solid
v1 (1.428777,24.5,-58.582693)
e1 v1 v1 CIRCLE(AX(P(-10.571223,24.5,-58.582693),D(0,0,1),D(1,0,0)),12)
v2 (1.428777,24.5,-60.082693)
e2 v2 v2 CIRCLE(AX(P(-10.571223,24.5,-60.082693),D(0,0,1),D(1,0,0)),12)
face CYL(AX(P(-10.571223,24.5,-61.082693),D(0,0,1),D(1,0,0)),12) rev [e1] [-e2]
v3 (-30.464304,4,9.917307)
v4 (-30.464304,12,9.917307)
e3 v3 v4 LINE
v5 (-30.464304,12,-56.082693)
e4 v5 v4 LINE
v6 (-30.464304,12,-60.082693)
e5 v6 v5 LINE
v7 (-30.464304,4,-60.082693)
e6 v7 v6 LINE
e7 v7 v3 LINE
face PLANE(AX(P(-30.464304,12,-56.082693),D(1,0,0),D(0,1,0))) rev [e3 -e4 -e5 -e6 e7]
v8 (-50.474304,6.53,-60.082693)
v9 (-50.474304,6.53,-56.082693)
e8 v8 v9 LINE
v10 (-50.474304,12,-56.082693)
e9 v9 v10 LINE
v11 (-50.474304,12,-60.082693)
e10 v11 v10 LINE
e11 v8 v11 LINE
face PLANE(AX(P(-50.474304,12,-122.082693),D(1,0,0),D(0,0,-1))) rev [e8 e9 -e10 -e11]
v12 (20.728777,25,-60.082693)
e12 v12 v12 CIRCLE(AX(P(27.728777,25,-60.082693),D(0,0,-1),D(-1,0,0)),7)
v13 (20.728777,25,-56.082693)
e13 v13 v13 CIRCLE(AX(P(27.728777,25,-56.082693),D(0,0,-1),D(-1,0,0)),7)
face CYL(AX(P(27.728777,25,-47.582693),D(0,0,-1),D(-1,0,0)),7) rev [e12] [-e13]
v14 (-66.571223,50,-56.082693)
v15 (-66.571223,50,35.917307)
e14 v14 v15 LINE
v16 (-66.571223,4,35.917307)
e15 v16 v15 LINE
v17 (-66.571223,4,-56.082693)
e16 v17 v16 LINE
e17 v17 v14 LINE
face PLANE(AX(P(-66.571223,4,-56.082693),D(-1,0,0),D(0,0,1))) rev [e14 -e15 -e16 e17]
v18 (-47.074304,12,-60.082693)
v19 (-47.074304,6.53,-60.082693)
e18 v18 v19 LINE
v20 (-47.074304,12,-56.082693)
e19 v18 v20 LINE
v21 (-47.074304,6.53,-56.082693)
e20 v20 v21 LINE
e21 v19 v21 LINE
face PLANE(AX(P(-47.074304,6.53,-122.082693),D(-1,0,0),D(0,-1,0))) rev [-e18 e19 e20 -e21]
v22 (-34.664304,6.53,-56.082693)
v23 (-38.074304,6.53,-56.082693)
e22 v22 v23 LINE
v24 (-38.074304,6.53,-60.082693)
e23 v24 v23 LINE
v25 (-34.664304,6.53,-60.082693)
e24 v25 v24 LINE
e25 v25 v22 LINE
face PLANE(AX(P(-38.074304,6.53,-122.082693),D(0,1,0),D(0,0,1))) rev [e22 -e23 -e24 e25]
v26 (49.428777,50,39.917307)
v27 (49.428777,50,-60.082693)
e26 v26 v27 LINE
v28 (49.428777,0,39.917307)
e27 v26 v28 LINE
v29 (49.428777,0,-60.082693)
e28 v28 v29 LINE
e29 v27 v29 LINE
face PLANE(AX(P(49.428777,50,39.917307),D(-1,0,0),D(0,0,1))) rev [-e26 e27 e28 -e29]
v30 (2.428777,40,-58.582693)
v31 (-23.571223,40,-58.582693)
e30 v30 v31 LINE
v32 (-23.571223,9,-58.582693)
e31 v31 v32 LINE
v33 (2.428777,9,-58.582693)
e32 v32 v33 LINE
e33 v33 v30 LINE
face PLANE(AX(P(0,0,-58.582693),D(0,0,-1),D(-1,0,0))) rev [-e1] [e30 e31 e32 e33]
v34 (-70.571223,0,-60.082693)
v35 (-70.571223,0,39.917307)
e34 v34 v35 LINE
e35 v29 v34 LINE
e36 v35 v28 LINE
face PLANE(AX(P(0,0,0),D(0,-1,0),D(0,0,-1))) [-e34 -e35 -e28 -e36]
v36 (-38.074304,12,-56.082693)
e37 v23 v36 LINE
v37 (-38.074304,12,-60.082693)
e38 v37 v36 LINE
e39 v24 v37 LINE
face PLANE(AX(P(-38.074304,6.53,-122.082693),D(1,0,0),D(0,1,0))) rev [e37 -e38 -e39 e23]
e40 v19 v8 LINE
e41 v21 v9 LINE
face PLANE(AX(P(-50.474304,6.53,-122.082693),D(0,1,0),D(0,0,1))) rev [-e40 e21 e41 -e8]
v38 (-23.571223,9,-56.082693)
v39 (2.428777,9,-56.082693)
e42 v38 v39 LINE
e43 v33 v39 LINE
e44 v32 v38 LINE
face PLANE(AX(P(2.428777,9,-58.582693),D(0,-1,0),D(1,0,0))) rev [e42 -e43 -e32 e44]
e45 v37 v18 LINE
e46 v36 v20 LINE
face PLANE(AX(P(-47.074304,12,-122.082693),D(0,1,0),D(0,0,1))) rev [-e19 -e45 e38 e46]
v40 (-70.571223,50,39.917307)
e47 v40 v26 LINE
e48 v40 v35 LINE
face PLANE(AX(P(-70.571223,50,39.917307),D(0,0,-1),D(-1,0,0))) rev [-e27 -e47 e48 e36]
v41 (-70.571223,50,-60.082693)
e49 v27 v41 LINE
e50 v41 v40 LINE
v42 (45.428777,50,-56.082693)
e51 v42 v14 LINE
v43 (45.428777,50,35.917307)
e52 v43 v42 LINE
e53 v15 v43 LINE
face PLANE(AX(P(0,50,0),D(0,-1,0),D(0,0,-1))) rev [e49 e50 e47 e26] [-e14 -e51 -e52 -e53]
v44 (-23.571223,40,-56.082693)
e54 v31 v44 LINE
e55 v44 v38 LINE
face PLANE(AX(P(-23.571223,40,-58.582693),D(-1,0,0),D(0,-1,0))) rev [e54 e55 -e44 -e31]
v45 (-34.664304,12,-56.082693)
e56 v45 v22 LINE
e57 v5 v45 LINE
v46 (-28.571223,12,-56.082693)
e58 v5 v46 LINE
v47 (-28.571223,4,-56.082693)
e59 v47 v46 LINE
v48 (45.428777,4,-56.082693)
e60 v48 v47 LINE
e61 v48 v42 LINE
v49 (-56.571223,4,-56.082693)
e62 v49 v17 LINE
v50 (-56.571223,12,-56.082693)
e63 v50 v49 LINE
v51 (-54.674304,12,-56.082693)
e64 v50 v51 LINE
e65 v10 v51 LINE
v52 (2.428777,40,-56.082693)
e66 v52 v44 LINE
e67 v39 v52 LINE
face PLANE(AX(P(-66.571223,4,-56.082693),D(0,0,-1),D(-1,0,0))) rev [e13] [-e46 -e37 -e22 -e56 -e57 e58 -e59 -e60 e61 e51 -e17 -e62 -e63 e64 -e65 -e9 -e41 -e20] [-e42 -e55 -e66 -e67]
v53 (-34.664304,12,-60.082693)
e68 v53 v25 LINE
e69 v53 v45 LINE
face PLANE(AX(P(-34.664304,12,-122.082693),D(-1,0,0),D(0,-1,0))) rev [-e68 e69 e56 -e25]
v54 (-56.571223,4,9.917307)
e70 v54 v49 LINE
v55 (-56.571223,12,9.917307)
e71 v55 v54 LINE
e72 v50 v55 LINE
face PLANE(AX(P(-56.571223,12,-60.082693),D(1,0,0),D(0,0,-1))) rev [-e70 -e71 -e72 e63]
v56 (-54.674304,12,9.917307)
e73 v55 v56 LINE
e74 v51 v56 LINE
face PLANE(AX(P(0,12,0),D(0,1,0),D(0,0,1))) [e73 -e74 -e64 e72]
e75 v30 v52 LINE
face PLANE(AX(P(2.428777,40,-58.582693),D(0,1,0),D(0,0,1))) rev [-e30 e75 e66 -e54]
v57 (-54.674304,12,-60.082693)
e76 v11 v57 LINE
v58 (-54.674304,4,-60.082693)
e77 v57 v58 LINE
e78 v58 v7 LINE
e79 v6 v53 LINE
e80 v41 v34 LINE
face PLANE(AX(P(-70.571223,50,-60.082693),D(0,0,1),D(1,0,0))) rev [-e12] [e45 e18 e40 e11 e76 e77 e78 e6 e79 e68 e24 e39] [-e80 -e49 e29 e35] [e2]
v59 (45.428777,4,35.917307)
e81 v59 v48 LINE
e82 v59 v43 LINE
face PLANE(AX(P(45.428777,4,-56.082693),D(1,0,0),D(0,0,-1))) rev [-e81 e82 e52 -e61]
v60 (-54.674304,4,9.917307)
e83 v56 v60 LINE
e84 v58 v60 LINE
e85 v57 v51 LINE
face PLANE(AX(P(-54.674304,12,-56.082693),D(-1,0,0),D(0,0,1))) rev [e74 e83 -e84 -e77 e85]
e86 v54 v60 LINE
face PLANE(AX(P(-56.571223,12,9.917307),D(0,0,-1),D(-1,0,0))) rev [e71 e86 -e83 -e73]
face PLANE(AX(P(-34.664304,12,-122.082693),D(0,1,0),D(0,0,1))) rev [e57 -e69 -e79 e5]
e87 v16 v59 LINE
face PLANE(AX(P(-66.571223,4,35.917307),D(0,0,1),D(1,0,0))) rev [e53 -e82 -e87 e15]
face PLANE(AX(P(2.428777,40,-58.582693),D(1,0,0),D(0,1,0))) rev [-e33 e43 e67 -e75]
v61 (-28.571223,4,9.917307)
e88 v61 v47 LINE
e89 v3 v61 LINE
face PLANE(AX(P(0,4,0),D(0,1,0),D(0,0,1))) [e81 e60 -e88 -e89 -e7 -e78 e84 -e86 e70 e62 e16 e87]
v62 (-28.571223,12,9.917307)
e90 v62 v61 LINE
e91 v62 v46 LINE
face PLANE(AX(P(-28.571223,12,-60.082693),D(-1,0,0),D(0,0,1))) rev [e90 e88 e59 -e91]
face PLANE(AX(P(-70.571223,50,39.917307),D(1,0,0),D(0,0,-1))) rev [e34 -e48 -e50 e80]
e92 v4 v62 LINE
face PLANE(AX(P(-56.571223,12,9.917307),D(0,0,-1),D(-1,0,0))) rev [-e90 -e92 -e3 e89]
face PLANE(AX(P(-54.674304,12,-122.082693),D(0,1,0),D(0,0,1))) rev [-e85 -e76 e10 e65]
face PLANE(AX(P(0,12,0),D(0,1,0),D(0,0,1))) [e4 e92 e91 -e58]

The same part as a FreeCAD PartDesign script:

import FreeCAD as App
import Part
import Sketcher

V = App.Vector

doc = App.newDocument("Part")
params = doc.addObject("Spreadsheet::Sheet", "Params")
for row, (alias, value) in enumerate([
    ("sketch1_width", "120 mm"),
    ("sketch1_height", "100 mm"),
    ("pad1_length", "50 mm"),
    ("sketch2_width", "112 mm"),
    ("sketch2_height", "92 mm"),
    ("pocket1_length", "46 mm"),
    ("sketch3_width", "28 mm"),
    ("sketch3_height", "70 mm"),
    ("pad2_length", "8 mm"),
    ("sketch4_height", "8 mm"),
    ("sketch4_width", "24.21 mm"),
    ("pocket2_length", "66 mm"),
    ("sketch5_width", "9 mm"),
    ("sketch5_height", "8 mm"),
    ("sketch5_width2", "4.2 mm"),
    ("sketch5_width3", "3.4 mm"),
    ("sketch5_width4", "24.21 mm"),
    ("pocket3_length", "66 mm"),
    ("sketch6_width", "26 mm"),
    ("sketch6_height", "31 mm"),
    ("pocket4_length", "2.5 mm"),
    ("sketch7_diameter", "24 mm"),
    ("pocket5_length", "2.5 mm"),
    ("sketch8_diameter", "14 mm"),
    ("pocket6_length", "12.5 mm"),
], start=1):
    params.set(f"A{row}", alias)
    params.set(f"B{row}", "=" + value)
    params.setAlias(f"B{row}", alias)

body = doc.addObject("PartDesign::Body", "Body")

# Sketch on XZ plane
sketch1 = body.newObject("Sketcher::SketchObject", "Sketch")
sketch1.AttachmentSupport = (doc.getObject("XZ_Plane"), [""])
sketch1.MapMode = "FlatFace"
sketch1.addGeometry([
    Part.LineSegment(V(-70.571223, -60.082693, 0), V(-70.571223, 39.917307, 0)),
    Part.LineSegment(V(-70.571223, 39.917307, 0), V(49.428777, 39.917307, 0)),
    Part.LineSegment(V(49.428777, 39.917307, 0), V(49.428777, -60.082693, 0)),
    Part.LineSegment(V(49.428777, -60.082693, 0), V(-70.571223, -60.082693, 0)),
], False)
sketch1.addConstraint([
    Sketcher.Constraint("Coincident", 0, 2, 1, 1),
    Sketcher.Constraint("Coincident", 1, 2, 2, 1),
    Sketcher.Constraint("Coincident", 2, 2, 3, 1),
    Sketcher.Constraint("Coincident", 3, 2, 0, 1),
    Sketcher.Constraint("Vertical", 0),
    Sketcher.Constraint("Horizontal", 1),
    Sketcher.Constraint("Vertical", 2),
    Sketcher.Constraint("Horizontal", 3),
    Sketcher.Constraint("DistanceX", 1, 1, 1, 2, 120.0),
    Sketcher.Constraint("DistanceY", 0, 1, 0, 2, 100.0),
    Sketcher.Constraint("DistanceX", 0, 2, -1, 1, 70.571223),
    Sketcher.Constraint("DistanceY", -1, 1, 0, 2, 39.917307),
])
sketch1.setExpression("Constraints[8]", "Params.sketch1_width")
sketch1.setExpression("Constraints[9]", "Params.sketch1_height")
pad1 = body.newObject("PartDesign::Pad", "Pad")
pad1.Profile = sketch1
pad1.setExpression("Length", "Params.pad1_length")
pad1.Reversed = True

# Sketch on XZ plane
sketch2 = body.newObject("Sketcher::SketchObject", "Sketch001")
sketch2.AttachmentSupport = (doc.getObject("XZ_Plane"), [""])
sketch2.MapMode = "FlatFace"
sketch2.AttachmentOffset = App.Placement(V(0, 0, -50), App.Rotation())
sketch2.addGeometry([
    Part.LineSegment(V(-66.571223, -56.082693, 0), V(-66.571223, 35.917307, 0)),
    Part.LineSegment(V(-66.571223, 35.917307, 0), V(45.428777, 35.917307, 0)),
    Part.LineSegment(V(45.428777, 35.917307, 0), V(45.428777, -56.082693, 0)),
    Part.LineSegment(V(45.428777, -56.082693, 0), V(-66.571223, -56.082693, 0)),
], False)
sketch2.addConstraint([
    Sketcher.Constraint("Coincident", 0, 2, 1, 1),
    Sketcher.Constraint("Coincident", 1, 2, 2, 1),
    Sketcher.Constraint("Coincident", 2, 2, 3, 1),
    Sketcher.Constraint("Coincident", 3, 2, 0, 1),
    Sketcher.Constraint("Vertical", 0),
    Sketcher.Constraint("Horizontal", 1),
    Sketcher.Constraint("Vertical", 2),
    Sketcher.Constraint("Horizontal", 3),
    Sketcher.Constraint("DistanceX", 1, 1, 1, 2, 112.0),
    Sketcher.Constraint("DistanceY", 0, 1, 0, 2, 92.0),
    Sketcher.Constraint("DistanceX", 0, 2, -1, 1, 66.571223),
    Sketcher.Constraint("DistanceY", -1, 1, 0, 2, 35.917307),
])
sketch2.setExpression("Constraints[8]", "Params.sketch2_width")
sketch2.setExpression("Constraints[9]", "Params.sketch2_height")
pocket1 = body.newObject("PartDesign::Pocket", "Pocket")
pocket1.Profile = sketch2
pocket1.setExpression("Length", "Params.pocket1_length")
pocket1.Reversed = True

# Sketch on XZ plane
sketch3 = body.newObject("Sketcher::SketchObject", "Sketch002")
sketch3.AttachmentSupport = (doc.getObject("XZ_Plane"), [""])
sketch3.MapMode = "FlatFace"
sketch3.AttachmentOffset = App.Placement(V(0, 0, -4), App.Rotation())
sketch3.addGeometry([
    Part.LineSegment(V(-56.571223, -60.082693, 0), V(-56.571223, 9.917307, 0)),
    Part.LineSegment(V(-56.571223, 9.917307, 0), V(-28.571223, 9.917307, 0)),
    Part.LineSegment(V(-28.571223, 9.917307, 0), V(-28.571223, -60.082693, 0)),
    Part.LineSegment(V(-28.571223, -60.082693, 0), V(-56.571223, -60.082693, 0)),
], False)
sketch3.addConstraint([
    Sketcher.Constraint("Coincident", 0, 2, 1, 1),
    Sketcher.Constraint("Coincident", 1, 2, 2, 1),
    Sketcher.Constraint("Coincident", 2, 2, 3, 1),
    Sketcher.Constraint("Coincident", 3, 2, 0, 1),
    Sketcher.Constraint("Vertical", 0),
    Sketcher.Constraint("Horizontal", 1),
    Sketcher.Constraint("Vertical", 2),
    Sketcher.Constraint("Horizontal", 3),
    Sketcher.Constraint("DistanceX", 1, 1, 1, 2, 28.0),
    Sketcher.Constraint("DistanceY", 0, 1, 0, 2, 70.0),
    Sketcher.Constraint("DistanceX", 0, 2, -1, 1, 56.571223),
    Sketcher.Constraint("DistanceY", -1, 1, 0, 2, 9.917307),
])
sketch3.setExpression("Constraints[8]", "Params.sketch3_width")
sketch3.setExpression("Constraints[9]", "Params.sketch3_height")
pad2 = body.newObject("PartDesign::Pad", "Pad001")
pad2.Profile = sketch3
pad2.setExpression("Length", "Params.pad2_length")
pad2.Reversed = True

# Sketch on XY plane
sketch4 = body.newObject("Sketcher::SketchObject", "Sketch003")
sketch4.AttachmentSupport = (doc.getObject("XY_Plane"), [""])
sketch4.MapMode = "FlatFace"
sketch4.AttachmentOffset = App.Placement(V(0, 0, 9.917307), App.Rotation())
sketch4.addGeometry([
    Part.LineSegment(V(-54.674304, 12, 0), V(-54.674304, 4, 0)),
    Part.LineSegment(V(-54.674304, 4, 0), V(-30.464304, 4, 0)),
    Part.LineSegment(V(-30.464304, 4, 0), V(-30.464304, 12, 0)),
    Part.LineSegment(V(-30.464304, 12, 0), V(-54.674304, 12, 0)),
], False)
sketch4.addConstraint([
    Sketcher.Constraint("Coincident", 0, 2, 1, 1),
    Sketcher.Constraint("Coincident", 1, 2, 2, 1),
    Sketcher.Constraint("Coincident", 2, 2, 3, 1),
    Sketcher.Constraint("Coincident", 3, 2, 0, 1),
    Sketcher.Constraint("Vertical", 0),
    Sketcher.Constraint("Horizontal", 1),
    Sketcher.Constraint("Vertical", 2),
    Sketcher.Constraint("Horizontal", 3),
    Sketcher.Constraint("DistanceY", 0, 2, 0, 1, 8.0),
    Sketcher.Constraint("DistanceY", -1, 1, 0, 2, 4.0),
    Sketcher.Constraint("DistanceX", 1, 1, 1, 2, 24.21),
    Sketcher.Constraint("DistanceX", 0, 2, -1, 1, 54.674304),
])
sketch4.setExpression("Constraints[8]", "Params.sketch4_height")
sketch4.setExpression("Constraints[10]", "Params.sketch4_width")
pocket2 = body.newObject("PartDesign::Pocket", "Pocket001")
pocket2.Profile = sketch4
pocket2.setExpression("Length", "Params.pocket2_length")

# Sketch on XY plane
sketch5 = body.newObject("Sketcher::SketchObject", "Sketch004")
sketch5.AttachmentSupport = (doc.getObject("XY_Plane"), [""])
sketch5.MapMode = "FlatFace"
sketch5.AttachmentOffset = App.Placement(V(0, 0, -56.082693), App.Rotation())
sketch5.addGeometry([
    Part.LineSegment(V(-50.474304, 12, 0), V(-54.674304, 12, 0)),  # 0
    Part.LineSegment(V(-54.674304, 12, 0), V(-54.674304, 4, 0)),  # 1
    Part.LineSegment(V(-54.674304, 4, 0), V(-30.464304, 4, 0)),  # 2
    Part.LineSegment(V(-30.464304, 4, 0), V(-30.464304, 12, 0)),  # 3
    Part.LineSegment(V(-30.464304, 12, 0), V(-34.664304, 12, 0)),  # 4
    Part.LineSegment(V(-34.664304, 12, 0), V(-34.664304, 6.53, 0)),  # 5
    Part.LineSegment(V(-34.664304, 6.53, 0), V(-38.074304, 6.53, 0)),  # 6
    Part.LineSegment(V(-38.074304, 6.53, 0), V(-38.074304, 12, 0)),  # 7
    Part.LineSegment(V(-38.074304, 12, 0), V(-47.074304, 12, 0)),  # 8
    Part.LineSegment(V(-47.074304, 12, 0), V(-47.074304, 6.53, 0)),  # 9
    Part.LineSegment(V(-47.074304, 6.53, 0), V(-50.474304, 6.53, 0)),  # 10
    Part.LineSegment(V(-50.474304, 6.53, 0), V(-50.474304, 12, 0)),  # 11
], False)
sketch5.addConstraint([
    Sketcher.Constraint("Coincident", 0, 2, 1, 1),
    Sketcher.Constraint("Coincident", 1, 2, 2, 1),
    Sketcher.Constraint("Coincident", 2, 2, 3, 1),
    Sketcher.Constraint("Coincident", 3, 2, 4, 1),
    Sketcher.Constraint("Coincident", 4, 2, 5, 1),
    Sketcher.Constraint("Coincident", 5, 2, 6, 1),
    Sketcher.Constraint("Coincident", 6, 2, 7, 1),
    Sketcher.Constraint("Coincident", 7, 2, 8, 1),
    Sketcher.Constraint("Coincident", 8, 2, 9, 1),
    Sketcher.Constraint("Coincident", 9, 2, 10, 1),
    Sketcher.Constraint("Coincident", 10, 2, 11, 1),
    Sketcher.Constraint("Coincident", 11, 2, 0, 1),
    Sketcher.Constraint("Horizontal", 0),
    Sketcher.Constraint("Vertical", 1),
    Sketcher.Constraint("Horizontal", 2),
    Sketcher.Constraint("Vertical", 3),
    Sketcher.Constraint("Horizontal", 4),
    Sketcher.Constraint("Vertical", 5),
    Sketcher.Constraint("Horizontal", 6),
    Sketcher.Constraint("Vertical", 7),
    Sketcher.Constraint("Horizontal", 8),
    Sketcher.Constraint("Vertical", 9),
    Sketcher.Constraint("Horizontal", 10),
    Sketcher.Constraint("Vertical", 11),
    Sketcher.Constraint("Horizontal", 0, 2, 3, 2),
    Sketcher.Constraint("Horizontal", 4, 2, 7, 2),
    Sketcher.Constraint("Horizontal", 6, 2, 9, 2),
    Sketcher.Constraint("Equal", 0, 4),
    Sketcher.Constraint("DistanceX", 8, 2, 8, 1, 9.0),
    Sketcher.Constraint("DistanceY", 1, 2, 1, 1, 8.0),
    Sketcher.Constraint("DistanceX", 0, 2, 0, 1, 4.2),
    Sketcher.Constraint("DistanceX", 10, 2, 10, 1, 3.4),
    Sketcher.Constraint("DistanceY", -1, 1, 0, 2, 12.0),
    Sketcher.Constraint("DistanceX", 2, 1, 2, 2, 24.21),
    Sketcher.Constraint("DistanceY", 5, 2, 5, 1, 5.47),
    Sketcher.Constraint("DistanceX", 0, 2, -1, 1, 54.674304),
])
sketch5.setExpression("Constraints[28]", "Params.sketch5_width")
sketch5.setExpression("Constraints[29]", "Params.sketch5_height")
sketch5.setExpression("Constraints[30]", "Params.sketch5_width2")
sketch5.setExpression("Constraints[31]", "Params.sketch5_width3")
sketch5.setExpression("Constraints[33]", "Params.sketch5_width4")
pocket3 = body.newObject("PartDesign::Pocket", "Pocket002")
pocket3.Profile = sketch5
pocket3.setExpression("Length", "Params.pocket3_length")

# Sketch on XY plane
sketch6 = body.newObject("Sketcher::SketchObject", "Sketch005")
sketch6.AttachmentSupport = (doc.getObject("XY_Plane"), [""])
sketch6.MapMode = "FlatFace"
sketch6.AttachmentOffset = App.Placement(V(0, 0, -56.082693), App.Rotation())
sketch6.addGeometry([
    Part.LineSegment(V(-23.571223, 40, 0), V(-23.571223, 9, 0)),
    Part.LineSegment(V(-23.571223, 9, 0), V(2.428777, 9, 0)),
    Part.LineSegment(V(2.428777, 9, 0), V(2.428777, 40, 0)),
    Part.LineSegment(V(2.428777, 40, 0), V(-23.571223, 40, 0)),
], False)
sketch6.addConstraint([
    Sketcher.Constraint("Coincident", 0, 2, 1, 1),
    Sketcher.Constraint("Coincident", 1, 2, 2, 1),
    Sketcher.Constraint("Coincident", 2, 2, 3, 1),
    Sketcher.Constraint("Coincident", 3, 2, 0, 1),
    Sketcher.Constraint("Vertical", 0),
    Sketcher.Constraint("Horizontal", 1),
    Sketcher.Constraint("Vertical", 2),
    Sketcher.Constraint("Horizontal", 3),
    Sketcher.Constraint("DistanceX", 1, 1, 1, 2, 26.0),
    Sketcher.Constraint("DistanceY", 0, 2, 0, 1, 31.0),
    Sketcher.Constraint("DistanceY", -1, 1, 0, 2, 9.0),
    Sketcher.Constraint("DistanceX", 0, 2, -1, 1, 23.571223),
])
sketch6.setExpression("Constraints[8]", "Params.sketch6_width")
sketch6.setExpression("Constraints[9]", "Params.sketch6_height")
pocket4 = body.newObject("PartDesign::Pocket", "Pocket003")
pocket4.Profile = sketch6
pocket4.setExpression("Length", "Params.pocket4_length")

# Sketch on XY plane
sketch7 = body.newObject("Sketcher::SketchObject", "Sketch006")
sketch7.AttachmentSupport = (doc.getObject("XY_Plane"), [""])
sketch7.MapMode = "FlatFace"
sketch7.AttachmentOffset = App.Placement(V(0, 0, -58.582693), App.Rotation())
sketch7.addGeometry(Part.Circle(V(-10.571223, 24.5, 0), V(0, 0, 1), 12), False)
sketch7.addConstraint([
    Sketcher.Constraint("Diameter", 0, 24.0),
    Sketcher.Constraint("DistanceY", -1, 1, 0, 3, 24.5),
    Sketcher.Constraint("DistanceX", 0, 3, -1, 1, 10.571223),
])
sketch7.setExpression("Constraints[0]", "Params.sketch7_diameter")
pocket5 = body.newObject("PartDesign::Pocket", "Pocket004")
pocket5.Profile = sketch7
pocket5.setExpression("Length", "Params.pocket5_length")

# Sketch on XY plane
sketch8 = body.newObject("Sketcher::SketchObject", "Sketch007")
sketch8.AttachmentSupport = (doc.getObject("XY_Plane"), [""])
sketch8.MapMode = "FlatFace"
sketch8.AttachmentOffset = App.Placement(V(0, 0, -60.082693), App.Rotation())
sketch8.addGeometry(Part.Circle(V(27.728777, 25, 0), V(0, 0, 1), 7), False)
sketch8.addConstraint([
    Sketcher.Constraint("Diameter", 0, 14.0),
    Sketcher.Constraint("DistanceY", -1, 1, 0, 3, 25.0),
    Sketcher.Constraint("DistanceX", -1, 1, 0, 3, 27.728777),
])
sketch8.setExpression("Constraints[0]", "Params.sketch8_diameter")
pocket6 = body.newObject("PartDesign::Pocket", "Pocket005")
pocket6.Profile = sketch8
pocket6.setExpression("Length", "Params.pocket6_length")
pocket6.Reversed = True

doc.recompute()
